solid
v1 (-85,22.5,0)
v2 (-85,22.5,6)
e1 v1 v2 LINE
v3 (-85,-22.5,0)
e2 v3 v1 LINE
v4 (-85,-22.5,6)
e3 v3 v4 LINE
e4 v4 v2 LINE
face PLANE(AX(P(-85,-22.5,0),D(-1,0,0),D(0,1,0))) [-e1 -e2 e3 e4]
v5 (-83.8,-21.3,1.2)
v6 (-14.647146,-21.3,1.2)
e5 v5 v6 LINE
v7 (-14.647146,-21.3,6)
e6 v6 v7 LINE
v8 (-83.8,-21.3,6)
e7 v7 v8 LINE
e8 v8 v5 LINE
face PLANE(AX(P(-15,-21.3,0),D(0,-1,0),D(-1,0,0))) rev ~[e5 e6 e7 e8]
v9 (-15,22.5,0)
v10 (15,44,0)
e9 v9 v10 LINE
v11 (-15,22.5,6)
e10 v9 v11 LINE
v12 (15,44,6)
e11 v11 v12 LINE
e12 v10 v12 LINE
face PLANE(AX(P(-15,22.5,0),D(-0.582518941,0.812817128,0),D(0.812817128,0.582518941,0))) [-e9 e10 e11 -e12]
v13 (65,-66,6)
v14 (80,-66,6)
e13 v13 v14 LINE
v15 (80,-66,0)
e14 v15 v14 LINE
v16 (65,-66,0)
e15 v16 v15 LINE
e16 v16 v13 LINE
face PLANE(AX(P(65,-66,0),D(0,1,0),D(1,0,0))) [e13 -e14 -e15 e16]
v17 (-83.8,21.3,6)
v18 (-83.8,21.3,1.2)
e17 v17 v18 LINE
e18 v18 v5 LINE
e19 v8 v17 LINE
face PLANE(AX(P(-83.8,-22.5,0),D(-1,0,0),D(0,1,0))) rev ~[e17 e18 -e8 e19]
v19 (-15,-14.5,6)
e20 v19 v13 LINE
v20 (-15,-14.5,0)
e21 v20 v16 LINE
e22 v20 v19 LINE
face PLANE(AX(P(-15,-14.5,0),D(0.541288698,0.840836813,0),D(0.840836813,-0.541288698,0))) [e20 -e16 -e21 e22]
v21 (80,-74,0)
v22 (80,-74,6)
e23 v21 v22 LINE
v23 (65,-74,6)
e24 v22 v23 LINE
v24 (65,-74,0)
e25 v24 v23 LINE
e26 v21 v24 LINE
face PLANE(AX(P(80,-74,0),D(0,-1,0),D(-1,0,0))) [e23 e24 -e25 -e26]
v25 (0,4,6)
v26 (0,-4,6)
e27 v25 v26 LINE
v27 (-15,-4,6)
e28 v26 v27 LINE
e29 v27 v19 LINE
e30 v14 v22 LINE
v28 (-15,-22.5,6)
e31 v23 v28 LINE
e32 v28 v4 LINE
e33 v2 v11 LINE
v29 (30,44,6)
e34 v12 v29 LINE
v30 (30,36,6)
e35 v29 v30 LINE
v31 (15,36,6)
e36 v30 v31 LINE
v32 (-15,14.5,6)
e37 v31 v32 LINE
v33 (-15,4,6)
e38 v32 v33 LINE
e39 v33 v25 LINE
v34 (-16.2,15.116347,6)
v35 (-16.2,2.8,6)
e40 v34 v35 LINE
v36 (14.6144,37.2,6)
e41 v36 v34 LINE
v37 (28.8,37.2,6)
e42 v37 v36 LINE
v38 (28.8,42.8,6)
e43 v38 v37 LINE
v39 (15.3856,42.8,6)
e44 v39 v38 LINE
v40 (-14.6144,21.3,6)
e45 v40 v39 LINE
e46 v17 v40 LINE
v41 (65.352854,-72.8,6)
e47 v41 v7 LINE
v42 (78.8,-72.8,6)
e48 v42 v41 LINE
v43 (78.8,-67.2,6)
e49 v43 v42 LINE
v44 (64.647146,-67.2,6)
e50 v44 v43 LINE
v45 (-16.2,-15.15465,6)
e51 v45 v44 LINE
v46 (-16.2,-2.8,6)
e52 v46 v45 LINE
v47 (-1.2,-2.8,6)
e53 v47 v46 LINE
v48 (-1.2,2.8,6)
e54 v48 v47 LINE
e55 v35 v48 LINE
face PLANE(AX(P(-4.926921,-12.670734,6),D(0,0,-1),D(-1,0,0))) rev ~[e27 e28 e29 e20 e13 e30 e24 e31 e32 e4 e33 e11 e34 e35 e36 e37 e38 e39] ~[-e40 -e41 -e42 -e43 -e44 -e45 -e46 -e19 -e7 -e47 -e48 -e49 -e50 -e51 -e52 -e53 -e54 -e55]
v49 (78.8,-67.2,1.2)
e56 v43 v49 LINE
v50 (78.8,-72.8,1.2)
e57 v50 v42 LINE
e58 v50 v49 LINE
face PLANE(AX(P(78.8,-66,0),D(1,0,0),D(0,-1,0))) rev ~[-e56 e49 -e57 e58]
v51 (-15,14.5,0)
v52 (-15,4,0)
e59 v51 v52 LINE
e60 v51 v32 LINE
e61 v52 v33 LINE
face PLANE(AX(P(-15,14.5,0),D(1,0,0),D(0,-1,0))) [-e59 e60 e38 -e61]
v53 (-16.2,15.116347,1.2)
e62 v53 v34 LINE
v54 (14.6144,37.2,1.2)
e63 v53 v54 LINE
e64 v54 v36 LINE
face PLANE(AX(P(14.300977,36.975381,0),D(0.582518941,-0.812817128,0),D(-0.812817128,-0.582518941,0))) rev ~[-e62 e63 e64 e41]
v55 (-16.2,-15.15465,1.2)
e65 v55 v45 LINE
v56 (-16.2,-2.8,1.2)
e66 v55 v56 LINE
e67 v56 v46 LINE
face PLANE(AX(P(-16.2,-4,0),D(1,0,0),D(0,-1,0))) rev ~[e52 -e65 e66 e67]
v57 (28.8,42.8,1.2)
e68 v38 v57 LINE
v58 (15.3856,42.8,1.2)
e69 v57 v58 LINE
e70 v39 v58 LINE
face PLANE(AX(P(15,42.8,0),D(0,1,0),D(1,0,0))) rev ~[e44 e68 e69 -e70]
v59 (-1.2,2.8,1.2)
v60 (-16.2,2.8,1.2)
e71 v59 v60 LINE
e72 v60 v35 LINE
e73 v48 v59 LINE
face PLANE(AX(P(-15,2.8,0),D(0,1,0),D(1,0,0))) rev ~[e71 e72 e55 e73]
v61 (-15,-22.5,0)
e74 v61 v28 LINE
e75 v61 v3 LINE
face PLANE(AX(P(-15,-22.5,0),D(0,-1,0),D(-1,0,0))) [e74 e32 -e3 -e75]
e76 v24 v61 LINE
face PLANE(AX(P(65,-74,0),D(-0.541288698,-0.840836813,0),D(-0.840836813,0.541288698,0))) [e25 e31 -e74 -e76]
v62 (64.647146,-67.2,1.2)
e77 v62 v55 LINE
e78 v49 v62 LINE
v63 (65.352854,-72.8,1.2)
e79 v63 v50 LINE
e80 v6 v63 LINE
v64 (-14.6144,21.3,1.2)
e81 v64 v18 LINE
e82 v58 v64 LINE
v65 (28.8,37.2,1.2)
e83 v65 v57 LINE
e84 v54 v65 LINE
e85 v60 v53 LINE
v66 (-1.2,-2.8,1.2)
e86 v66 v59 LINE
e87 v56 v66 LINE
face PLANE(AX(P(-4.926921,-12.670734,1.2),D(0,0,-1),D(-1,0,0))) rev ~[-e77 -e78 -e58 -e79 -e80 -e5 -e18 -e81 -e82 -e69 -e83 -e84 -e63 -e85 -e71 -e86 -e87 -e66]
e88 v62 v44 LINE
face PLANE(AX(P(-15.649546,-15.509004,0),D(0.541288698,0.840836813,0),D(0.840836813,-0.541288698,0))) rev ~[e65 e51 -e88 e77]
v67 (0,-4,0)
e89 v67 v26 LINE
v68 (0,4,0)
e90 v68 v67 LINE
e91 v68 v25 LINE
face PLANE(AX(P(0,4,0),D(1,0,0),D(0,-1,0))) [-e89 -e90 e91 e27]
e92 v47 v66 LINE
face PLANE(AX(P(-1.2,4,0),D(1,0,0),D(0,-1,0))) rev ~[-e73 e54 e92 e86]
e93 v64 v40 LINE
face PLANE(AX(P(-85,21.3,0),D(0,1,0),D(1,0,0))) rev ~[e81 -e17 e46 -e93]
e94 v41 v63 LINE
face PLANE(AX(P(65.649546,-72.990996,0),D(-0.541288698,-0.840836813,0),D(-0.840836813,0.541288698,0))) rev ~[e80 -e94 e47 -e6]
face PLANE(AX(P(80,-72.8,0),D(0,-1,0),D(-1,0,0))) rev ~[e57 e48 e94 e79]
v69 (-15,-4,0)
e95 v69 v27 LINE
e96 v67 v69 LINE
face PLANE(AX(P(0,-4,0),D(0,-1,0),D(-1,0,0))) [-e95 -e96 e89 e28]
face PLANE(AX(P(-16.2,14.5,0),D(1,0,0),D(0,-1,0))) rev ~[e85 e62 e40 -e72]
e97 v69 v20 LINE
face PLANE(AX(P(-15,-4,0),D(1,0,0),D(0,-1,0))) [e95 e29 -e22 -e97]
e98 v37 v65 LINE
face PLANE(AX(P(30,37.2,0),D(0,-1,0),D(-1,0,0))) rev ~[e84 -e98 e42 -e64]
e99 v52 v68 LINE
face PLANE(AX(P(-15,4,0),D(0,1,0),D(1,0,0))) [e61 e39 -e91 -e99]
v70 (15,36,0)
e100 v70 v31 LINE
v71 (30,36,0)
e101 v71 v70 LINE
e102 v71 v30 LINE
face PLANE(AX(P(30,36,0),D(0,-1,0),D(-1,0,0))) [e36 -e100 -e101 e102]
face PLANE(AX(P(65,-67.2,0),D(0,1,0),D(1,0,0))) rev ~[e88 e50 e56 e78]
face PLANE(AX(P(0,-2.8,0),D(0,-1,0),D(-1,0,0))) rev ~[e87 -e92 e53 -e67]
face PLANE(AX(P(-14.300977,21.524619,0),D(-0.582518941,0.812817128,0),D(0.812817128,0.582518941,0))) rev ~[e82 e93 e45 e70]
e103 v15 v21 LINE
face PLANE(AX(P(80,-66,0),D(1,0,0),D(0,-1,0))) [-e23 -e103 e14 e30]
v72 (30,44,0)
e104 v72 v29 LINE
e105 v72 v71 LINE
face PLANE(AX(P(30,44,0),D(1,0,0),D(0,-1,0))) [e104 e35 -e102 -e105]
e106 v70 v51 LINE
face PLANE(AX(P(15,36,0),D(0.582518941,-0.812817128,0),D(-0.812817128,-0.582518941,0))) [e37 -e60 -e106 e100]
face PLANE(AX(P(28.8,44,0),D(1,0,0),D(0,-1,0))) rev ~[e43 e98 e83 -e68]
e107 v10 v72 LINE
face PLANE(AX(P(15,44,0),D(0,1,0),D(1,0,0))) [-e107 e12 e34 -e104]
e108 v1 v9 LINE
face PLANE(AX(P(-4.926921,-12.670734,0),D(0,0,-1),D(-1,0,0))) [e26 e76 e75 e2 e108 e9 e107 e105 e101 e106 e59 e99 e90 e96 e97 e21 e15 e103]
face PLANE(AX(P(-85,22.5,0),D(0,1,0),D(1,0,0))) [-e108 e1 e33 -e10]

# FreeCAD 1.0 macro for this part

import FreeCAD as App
import Part
import Sketcher
from FreeCAD import Vector
Q = App.Units.Quantity


def faces_at(feature, points):
    """Names of the faces that lie closest to the given points."""
    faces = feature.Shape.Faces
    near = lambda p: min(range(len(faces)), key=lambda i: faces[i].distToShape(Part.Vertex(*p))[0])
    return sorted({f"Face{near(p) + 1}" for p in points})


def add_polygon(sketch, points):
    """Adds a closed chain of lines whose ends are joined by coincident constraints."""
    first, n = sketch.GeometryCount, len(points)
    for a, b in zip(points, points[1:] + points[:1]):
        sketch.addGeometry(Part.LineSegment(App.Vector(*a, 0), App.Vector(*b, 0)), False)
    for i in range(n):
        sketch.addConstraint(Sketcher.Constraint("Coincident", first + i, 2, first + (i + 1) % n, 1))

doc = App.newDocument("Part")
body = doc.addObject("PartDesign::Body", "Body")

sketch1 = doc.addObject("Sketcher::SketchObject", "Sketch")
body.addObject(sketch1)
sketch1.AttachmentSupport = (doc.XY_Plane, [""])
sketch1.MapMode = "FlatFace"
add_polygon(sketch1, [(65, -74), (80, -74), (80, -66), (65, -66), (-15, -14.5), (-15, -4), (0, -4), (0, 4), (-15, 4), (-15, 14.5), (15, 36), (30, 36), (30, 44), (15, 44), (-15, 22.5), (-85, 22.5), (-85, -22.5), (-15, -22.5)])
sketch1.addConstraint([
    Sketcher.Constraint("Horizontal", 0),
    Sketcher.Constraint("Vertical", 1),
    Sketcher.Constraint("Horizontal", 2),
    Sketcher.Constraint("Vertical", 4),
    Sketcher.Constraint("Horizontal", 5),
    Sketcher.Constraint("Vertical", 6),
    Sketcher.Constraint("Horizontal", 7),
    Sketcher.Constraint("Vertical", 8),
    Sketcher.Constraint("Horizontal", 10),
    Sketcher.Constraint("Vertical", 11),
    Sketcher.Constraint("Horizontal", 12),
    Sketcher.Constraint("Horizontal", 14),
    Sketcher.Constraint("Vertical", 15),
    Sketcher.Constraint("Horizontal", 16),
    Sketcher.Constraint("Symmetric", 5, 2, 6, 2, -1, 1),
    Sketcher.Constraint("Symmetric", 3, 2, 8, 2, -1),
    Sketcher.Constraint("Symmetric", 13, 2, 16, 2, -1),
    Sketcher.Constraint("Parallel", 9, 13),
    Sketcher.Constraint("Parallel", 3, 17),
    Sketcher.Constraint("Vertical", 9, 2, 12, 2),
    Sketcher.Constraint("Vertical", 8, 2, 13, 2),
    Sketcher.Constraint("Vertical", 2, 2, 17, 2),
    Sketcher.Constraint("Equal", 2, 5),
    Sketcher.Constraint("Equal", 7, 10),
    Sketcher.Constraint("Equal", 1, 6),
    Sketcher.Constraint("DistanceX", 0, 1, 0, 2, Q("15 mm")),
    Sketcher.Constraint("DistanceX", 14, 2, 14, 1, Q("70 mm")),
    Sketcher.Constraint("DistanceY", 1, 1, 1, 2, Q("8 mm")),
    Sketcher.Constraint("DistanceY", 15, 2, 15, 1, Q("45 mm")),
    Sketcher.Constraint("DistanceX", -1, 1, 0, 2, Q("80 mm")),
    Sketcher.Constraint("DistanceY", 0, 2, -1, 1, Q("74 mm")),
    Sketcher.Constraint("DistanceX", -1, 1, 9, 2, Q("15 mm")),
    Sketcher.Constraint("DistanceY", -1, 1, 9, 2, Q("36 mm")),
])
pad1 = doc.addObject("PartDesign::Pad", "Pad")
body.addObject(pad1)
pad1.Profile = sketch1
pad1.Length = 6
doc.recompute()

thickness = doc.addObject("PartDesign::Thickness", "Thickness")
body.addObject(thickness)
thickness.Base = (pad1, faces_at(pad1, [(-68.5, -15, 6)]))
thickness.Value = 1.2
thickness.Reversed = True
thickness.Join = "Intersection"

doc.recompute()
